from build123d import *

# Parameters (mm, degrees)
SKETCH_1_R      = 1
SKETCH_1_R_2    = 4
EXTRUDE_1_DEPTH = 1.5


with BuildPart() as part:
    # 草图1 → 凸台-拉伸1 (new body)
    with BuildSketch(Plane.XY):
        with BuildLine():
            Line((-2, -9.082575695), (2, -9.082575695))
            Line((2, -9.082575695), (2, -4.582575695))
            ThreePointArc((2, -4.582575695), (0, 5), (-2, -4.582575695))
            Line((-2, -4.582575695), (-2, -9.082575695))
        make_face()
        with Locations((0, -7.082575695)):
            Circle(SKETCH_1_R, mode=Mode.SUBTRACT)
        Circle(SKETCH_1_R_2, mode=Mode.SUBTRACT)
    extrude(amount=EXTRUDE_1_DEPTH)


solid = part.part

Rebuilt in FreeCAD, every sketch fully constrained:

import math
import FreeCAD as App
import Part
import Sketcher
Q = App.Units.Quantity

doc = App.newDocument("Part")
params = doc.addObject("Spreadsheet::Sheet", "Params")
for row, (alias, value) in enumerate([
    ("sketch1_diameter", "2 mm"),
    ("sketch1_diameter2", "8 mm"),
    ("sketch1_radius", "5 mm"),
    ("sketch1_width", "4 mm"),
    ("sketch1_height", "4.5 mm"),
    ("pad1_length", "1.5 mm"),
], start=1):
    params.set(f"A{row}", alias)
    params.set(f"B{row}", "=" + value)
    params.setAlias(f"B{row}", alias)

body = doc.addObject("PartDesign::Body", "Body")

# Sketch on XY plane
sketch1 = doc.addObject("Sketcher::SketchObject", "Sketch")
body.addObject(sketch1)
sketch1.AttachmentSupport = (doc.XY_Plane, [""])
sketch1.MapMode = "FlatFace"
sketch1.addGeometry(Part.LineSegment(App.Vector(-2, -9.082576, 0), App.Vector(2, -9.082576, 0)), False)
sketch1.addGeometry(Part.LineSegment(App.Vector(2, -9.082576, 0), App.Vector(2, -4.582576, 0)), False)
sketch1.addGeometry(Part.ArcOfCircle(Part.Circle(App.Vector(0, 0, 0), App.Vector(0, 0, 1), 5), math.radians(-66.421822), math.radians(246.421822)), False)
sketch1.addGeometry(Part.LineSegment(App.Vector(-2, -4.582576, 0), App.Vector(-2, -9.082576, 0)), False)
sketch1.addGeometry(Part.Circle(App.Vector(0, -7.082576, 0), App.Vector(0, 0, 1), 1), False)
sketch1.addGeometry(Part.Circle(App.Vector(0, 0, 0), App.Vector(0, 0, 1), 4), False)
sketch1.addConstraint(Sketcher.Constraint("Coincident", 0, 2, 1, 1))
sketch1.addConstraint(Sketcher.Constraint("Coincident", 1, 2, 2, 1))
sketch1.addConstraint(Sketcher.Constraint("Coincident", 2, 2, 3, 1))
sketch1.addConstraint(Sketcher.Constraint("Coincident", 3, 2, 0, 1))
sketch1.addConstraint(Sketcher.Constraint("Horizontal", 0))
sketch1.addConstraint(Sketcher.Constraint("Vertical", 1))
sketch1.addConstraint(Sketcher.Constraint("Vertical", 3))
sketch1.addConstraint(Sketcher.Constraint("Coincident", 2, 3, -1, 1))
sketch1.addConstraint(Sketcher.Constraint("Coincident", 5, 3, -1, 1))
sketch1.addConstraint(Sketcher.Constraint("PointOnObject", 4, 3, -2))
sketch1.addConstraint(Sketcher.Constraint("Horizontal", 1, 2, 2, 2))
sketch1.addConstraint(Sketcher.Constraint("Diameter", 4, Q("2 mm")))
sketch1.addConstraint(Sketcher.Constraint("Diameter", 5, Q("8 mm")))
sketch1.addConstraint(Sketcher.Constraint("Radius", 2, Q("5 mm")))
sketch1.addConstraint(Sketcher.Constraint("DistanceX", 0, 1, 0, 2, Q("4 mm")))
sketch1.addConstraint(Sketcher.Constraint("DistanceY", 1, 1, 1, 2, Q("4.5 mm")))
sketch1.addConstraint(Sketcher.Constraint("DistanceY", 0, 2, 4, 3, Q("2 mm")))
sketch1.setExpression("Constraints[11]", "Params.sketch1_diameter")
sketch1.setExpression("Constraints[12]", "Params.sketch1_diameter2")
sketch1.setExpression("Constraints[13]", "Params.sketch1_radius")
sketch1.setExpression("Constraints[14]", "Params.sketch1_width")
sketch1.setExpression("Constraints[15]", "Params.sketch1_height")
pad1 = doc.addObject("PartDesign::Pad", "Pad")
body.addObject(pad1)
pad1.Profile = sketch1
pad1.setExpression("Length", "Params.pad1_length")

doc.recompute()
